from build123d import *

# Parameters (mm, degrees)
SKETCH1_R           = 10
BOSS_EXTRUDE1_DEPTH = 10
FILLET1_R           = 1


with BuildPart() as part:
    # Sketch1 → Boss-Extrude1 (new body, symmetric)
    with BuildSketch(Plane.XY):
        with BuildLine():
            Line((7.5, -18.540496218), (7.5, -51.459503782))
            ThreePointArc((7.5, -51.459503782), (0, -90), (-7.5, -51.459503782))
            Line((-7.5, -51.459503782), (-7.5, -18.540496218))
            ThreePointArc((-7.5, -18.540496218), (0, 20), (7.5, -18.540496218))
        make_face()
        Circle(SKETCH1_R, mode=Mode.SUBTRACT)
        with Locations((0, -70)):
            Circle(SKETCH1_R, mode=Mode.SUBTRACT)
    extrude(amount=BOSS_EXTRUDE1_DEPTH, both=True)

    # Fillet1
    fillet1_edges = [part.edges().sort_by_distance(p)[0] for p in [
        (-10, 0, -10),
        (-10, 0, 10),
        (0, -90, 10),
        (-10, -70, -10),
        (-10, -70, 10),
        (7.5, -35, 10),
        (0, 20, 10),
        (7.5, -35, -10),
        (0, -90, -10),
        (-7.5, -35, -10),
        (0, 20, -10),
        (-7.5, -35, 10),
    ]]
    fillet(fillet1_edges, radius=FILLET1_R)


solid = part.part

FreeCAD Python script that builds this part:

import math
import FreeCAD as App
import Part
import Sketcher

V = App.Vector
Q = App.Units.Quantity


def edges_at(feature, points):
    """Names of the edges that pass closest to the given points."""
    edges = feature.Shape.Edges
    near = lambda p: min(range(len(edges)), key=lambda i: edges[i].distToShape(Part.Vertex(*p))[0])
    return sorted({f"Edge{near(p) + 1}" for p in points})

doc = App.newDocument("Part")
body = doc.addObject("PartDesign::Body", "Body")

sketch1 = body.newObject("Sketcher::SketchObject", "Sketch")
sketch1.AttachmentSupport = (doc.getObject("XY_Plane"), [""])
sketch1.MapMode = "FlatFace"
sketch1.addGeometry([
    Part.LineSegment(V(8, -51, 0), V(8, -19, 0)),
    Part.ArcOfCircle(Part.Circle(V(0, 0, 0), V(0, 0, 1), 20), math.radians(-68), math.radians(248)),
    Part.LineSegment(V(-8, -19, 0), V(-8, -51, 0)),
    Part.ArcOfCircle(Part.Circle(V(0, -70, 0), V(0, 0, 1), 20), math.radians(112), math.radians(428)),
    Part.Circle(V(0, -70, 0), V(0, 0, 1), 10),
    Part.Circle(V(0, 0, 0), V(0, 0, 1), 10),
], False)
sketch1.addConstraint([
    Sketcher.Constraint("Coincident", 0, 2, 1, 1),
    Sketcher.Constraint("Coincident", 1, 2, 2, 1),
    Sketcher.Constraint("Coincident", 2, 2, 3, 1),
    Sketcher.Constraint("Coincident", 3, 2, 0, 1),
    Sketcher.Constraint("Vertical", 0),
    Sketcher.Constraint("Vertical", 2),
    Sketcher.Constraint("Coincident", 1, 3, -1, 1),
    Sketcher.Constraint("Coincident", 5, 3, -1, 1),
    Sketcher.Constraint("Coincident", 4, 3, 3, 3),
    Sketcher.Constraint("Equal", 1, 3),
    Sketcher.Constraint("Equal", 4, 5),
    Sketcher.Constraint("Symmetric", 2, 2, 3, 2, -2),
    Sketcher.Constraint("Diameter", 4, Q("20 mm")),
    Sketcher.Constraint("Radius", 1, Q("20 mm")),
    Sketcher.Constraint("DistanceY", 3, 3, -1, 1, Q("70 mm")),
    Sketcher.Constraint("DistanceX", 1, 2, 0, 2, Q("15 mm")),
])
pad1 = body.newObject("PartDesign::Pad", "Pad")
pad1.Profile = sketch1
pad1.Length = 20
pad1.Midplane = True
doc.recompute()

fillet = body.newObject("PartDesign::Fillet", "Fillet")
fillet.Base = (pad1, edges_at(pad1, [
    (-10, 0, -10),
    (-10, 0, 10),
    (0, -90, 10),
    (-10, -70, -10),
    (-10, -70, 10),
    (7.5, -35, 10),
    (0, 20, 10),
    (7.5, -35, -10),
    (0, -90, -10),
    (-7.5, -35, -10),
    (0, 20, -10),
    (-7.5, -35, 10),
]))
fillet.Radius = 1

doc.recompute()
